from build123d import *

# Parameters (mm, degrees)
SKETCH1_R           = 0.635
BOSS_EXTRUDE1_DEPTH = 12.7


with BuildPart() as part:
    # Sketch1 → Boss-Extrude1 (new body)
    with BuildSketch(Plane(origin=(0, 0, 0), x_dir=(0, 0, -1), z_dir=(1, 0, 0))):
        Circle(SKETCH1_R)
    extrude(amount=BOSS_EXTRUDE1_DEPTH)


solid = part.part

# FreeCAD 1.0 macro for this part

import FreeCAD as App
import Part
import Sketcher
Q = App.Units.Quantity

doc = App.newDocument("Part")
body = doc.addObject("PartDesign::Body", "Body")

# Sketch on YZ plane
sketch1 = body.newObject("Sketcher::SketchObject", "Sketch")
sketch1.AttachmentSupport = (doc.getObject("YZ_Plane"), [""])
sketch1.MapMode = "FlatFace"
sketch1.addGeometry(Part.Circle(App.Vector(0, 0, 0), App.Vector(0, 0, 1), 0.635), False)
sketch1.addConstraint([
    Sketcher.Constraint("Coincident", 0, 3, -1, 1),
    Sketcher.Constraint("Diameter", 0, Q("0.05 in")),
])
pad1 = body.newObject("PartDesign::Pad", "Pad")
pad1.Profile = sketch1
pad1.Length = Q("0.5 in")

doc.recompute()
